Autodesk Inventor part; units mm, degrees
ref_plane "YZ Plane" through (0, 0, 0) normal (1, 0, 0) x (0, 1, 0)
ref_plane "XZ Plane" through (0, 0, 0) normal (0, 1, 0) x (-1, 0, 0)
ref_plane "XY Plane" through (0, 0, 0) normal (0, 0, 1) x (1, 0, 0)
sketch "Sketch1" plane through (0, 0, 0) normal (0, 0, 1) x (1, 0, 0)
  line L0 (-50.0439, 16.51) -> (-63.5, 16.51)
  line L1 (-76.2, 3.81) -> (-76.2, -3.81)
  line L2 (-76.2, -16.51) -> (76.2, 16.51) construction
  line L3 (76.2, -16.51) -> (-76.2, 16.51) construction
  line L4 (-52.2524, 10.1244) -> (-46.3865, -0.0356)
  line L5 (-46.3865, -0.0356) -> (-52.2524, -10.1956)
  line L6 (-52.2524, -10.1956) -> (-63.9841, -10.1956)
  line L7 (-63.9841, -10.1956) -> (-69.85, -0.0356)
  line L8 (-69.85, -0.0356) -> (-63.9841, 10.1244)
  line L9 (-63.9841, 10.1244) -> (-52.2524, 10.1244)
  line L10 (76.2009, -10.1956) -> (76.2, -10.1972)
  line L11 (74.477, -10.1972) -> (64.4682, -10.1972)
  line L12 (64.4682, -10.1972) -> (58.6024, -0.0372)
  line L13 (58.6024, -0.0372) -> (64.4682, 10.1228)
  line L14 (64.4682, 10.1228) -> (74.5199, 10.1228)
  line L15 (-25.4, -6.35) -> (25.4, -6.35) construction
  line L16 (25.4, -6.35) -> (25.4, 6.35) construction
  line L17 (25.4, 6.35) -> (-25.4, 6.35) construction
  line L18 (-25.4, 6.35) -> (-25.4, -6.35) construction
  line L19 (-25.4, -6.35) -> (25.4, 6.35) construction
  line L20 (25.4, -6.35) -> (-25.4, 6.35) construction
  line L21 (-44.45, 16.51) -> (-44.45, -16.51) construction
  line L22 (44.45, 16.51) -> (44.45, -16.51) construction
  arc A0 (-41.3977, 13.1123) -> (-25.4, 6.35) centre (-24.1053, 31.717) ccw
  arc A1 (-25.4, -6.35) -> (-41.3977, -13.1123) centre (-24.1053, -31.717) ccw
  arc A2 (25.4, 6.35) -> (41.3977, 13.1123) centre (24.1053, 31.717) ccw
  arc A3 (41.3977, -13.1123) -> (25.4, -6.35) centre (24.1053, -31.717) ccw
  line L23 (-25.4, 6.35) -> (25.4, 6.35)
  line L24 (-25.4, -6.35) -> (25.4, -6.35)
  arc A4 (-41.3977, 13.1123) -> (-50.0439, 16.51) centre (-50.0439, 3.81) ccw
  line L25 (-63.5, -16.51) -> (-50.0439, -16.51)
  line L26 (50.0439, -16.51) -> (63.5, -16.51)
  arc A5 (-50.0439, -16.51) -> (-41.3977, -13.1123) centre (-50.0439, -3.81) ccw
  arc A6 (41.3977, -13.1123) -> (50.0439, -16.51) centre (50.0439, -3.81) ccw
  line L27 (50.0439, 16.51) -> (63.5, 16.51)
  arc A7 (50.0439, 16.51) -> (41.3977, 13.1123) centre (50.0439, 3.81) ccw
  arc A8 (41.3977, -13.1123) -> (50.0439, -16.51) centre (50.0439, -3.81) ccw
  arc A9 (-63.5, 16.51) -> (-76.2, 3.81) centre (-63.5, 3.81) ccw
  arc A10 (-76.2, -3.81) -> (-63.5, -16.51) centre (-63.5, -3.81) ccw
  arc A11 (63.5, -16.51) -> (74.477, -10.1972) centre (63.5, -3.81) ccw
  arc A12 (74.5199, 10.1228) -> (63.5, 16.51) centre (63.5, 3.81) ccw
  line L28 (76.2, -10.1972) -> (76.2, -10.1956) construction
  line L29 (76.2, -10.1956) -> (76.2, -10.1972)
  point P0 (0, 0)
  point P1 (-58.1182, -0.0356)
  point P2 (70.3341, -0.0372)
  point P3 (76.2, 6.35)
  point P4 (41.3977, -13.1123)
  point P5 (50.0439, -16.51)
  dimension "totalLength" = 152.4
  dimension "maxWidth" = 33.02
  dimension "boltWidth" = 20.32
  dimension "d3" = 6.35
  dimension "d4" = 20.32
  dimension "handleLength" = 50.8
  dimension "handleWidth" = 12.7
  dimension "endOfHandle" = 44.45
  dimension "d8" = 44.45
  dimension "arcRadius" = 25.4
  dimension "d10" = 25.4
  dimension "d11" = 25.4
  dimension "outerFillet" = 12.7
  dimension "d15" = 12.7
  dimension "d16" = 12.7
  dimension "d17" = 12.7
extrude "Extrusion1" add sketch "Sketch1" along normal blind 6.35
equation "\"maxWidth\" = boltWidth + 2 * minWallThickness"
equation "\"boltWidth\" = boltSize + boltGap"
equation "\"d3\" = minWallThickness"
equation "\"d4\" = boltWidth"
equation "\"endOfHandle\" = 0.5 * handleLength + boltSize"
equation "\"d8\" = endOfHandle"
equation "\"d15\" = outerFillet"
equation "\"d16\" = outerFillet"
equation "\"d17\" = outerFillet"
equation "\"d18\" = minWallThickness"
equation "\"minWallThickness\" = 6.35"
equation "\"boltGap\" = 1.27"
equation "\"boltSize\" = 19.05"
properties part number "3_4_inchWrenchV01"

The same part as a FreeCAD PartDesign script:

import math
import FreeCAD as App
import Part
import Sketcher
from FreeCAD import Vector
Q = App.Units.Quantity

doc = App.newDocument("Part")
params = doc.addObject("Spreadsheet::Sheet", "Params")
for row, (alias, value) in enumerate([
    ("sketch1_radius", "1 in"),
    ("sketch1_radius2", "0.5 in"),
    ("sketch1_width", "2 in"),
    ("pad1_length", "0.25 in"),
], start=1):
    params.set(f"A{row}", alias)
    params.set(f"B{row}", "=" + value)
    params.setAlias(f"B{row}", alias)

body = doc.addObject("PartDesign::Body", "Body")

sketch1 = doc.addObject("Sketcher::SketchObject", "Sketch")
body.addObject(sketch1)
sketch1.AttachmentSupport = (doc.XY_Plane, [""])
sketch1.MapMode = "FlatFace"
sketch1.addGeometry(Part.ArcOfCircle(Part.Circle(Vector(-50, 4, 0), Vector(0, 0, 1), 13), math.radians(47), math.radians(90)), False)
sketch1.addGeometry(Part.LineSegment(Vector(-50, 17, 0), Vector(-64, 17, 0)), False)
sketch1.addGeometry(Part.ArcOfCircle(Part.Circle(Vector(-64, 4, 0), Vector(0, 0, 1), 13), math.radians(90), math.radians(180)), False)
sketch1.addGeometry(Part.LineSegment(Vector(-76, 4, 0), Vector(-76, -4, 0)), False)
sketch1.addGeometry(Part.ArcOfCircle(Part.Circle(Vector(-64, -4, 0), Vector(0, 0, 1), 13), math.radians(180), math.radians(270)), False)
sketch1.addGeometry(Part.LineSegment(Vector(-64, -17, 0), Vector(-50, -17, 0)), False)
sketch1.addGeometry(Part.ArcOfCircle(Part.Circle(Vector(-50, -4, 0), Vector(0, 0, 1), 13), math.radians(-90), math.radians(-47)), False)
sketch1.addGeometry(Part.ArcOfCircle(Part.Circle(Vector(-24, -32, 0), Vector(0, 0, 1), 25), math.radians(93), math.radians(133)), False)
sketch1.addGeometry(Part.LineSegment(Vector(-25, -6, 0), Vector(25, -6, 0)), False)
sketch1.addGeometry(Part.ArcOfCircle(Part.Circle(Vector(24, -32, 0), Vector(0, 0, 1), 25), math.radians(47), math.radians(87)), False)
sketch1.addGeometry(Part.ArcOfCircle(Part.Circle(Vector(50, -4, 0), Vector(0, 0, 1), 13), math.radians(-133), math.radians(-90)), False)
sketch1.addGeometry(Part.LineSegment(Vector(50, -17, 0), Vector(64, -17, 0)), False)
sketch1.addGeometry(Part.ArcOfCircle(Part.Circle(Vector(64, -4, 0), Vector(0, 0, 1), 13), math.radians(-90), math.radians(-30)), False)
sketch1.addGeometry(Part.LineSegment(Vector(74, -10, 0), Vector(64, -10, 0)), False)
sketch1.addGeometry(Part.LineSegment(Vector(64, -10, 0), Vector(59, 0, 0)), False)
sketch1.addGeometry(Part.LineSegment(Vector(59, 0, 0), Vector(64, 10, 0)), False)
sketch1.addGeometry(Part.LineSegment(Vector(64, 10, 0), Vector(75, 10, 0)), False)
sketch1.addGeometry(Part.ArcOfCircle(Part.Circle(Vector(64, 4, 0), Vector(0, 0, 1), 13), math.radians(30), math.radians(90)), False)
sketch1.addGeometry(Part.LineSegment(Vector(64, 17, 0), Vector(50, 17, 0)), False)
sketch1.addGeometry(Part.ArcOfCircle(Part.Circle(Vector(50, 4, 0), Vector(0, 0, 1), 13), math.radians(90), math.radians(133)), False)
sketch1.addGeometry(Part.ArcOfCircle(Part.Circle(Vector(24, 32, 0), Vector(0, 0, 1), 25), math.radians(-87), math.radians(-47)), False)
sketch1.addGeometry(Part.LineSegment(Vector(25, 6, 0), Vector(-25, 6, 0)), False)
sketch1.addGeometry(Part.ArcOfCircle(Part.Circle(Vector(-24, 32, 0), Vector(0, 0, 1), 25), math.radians(-133), math.radians(-93)), False)
sketch1.addGeometry(Part.LineSegment(Vector(-64, 10, 0), Vector(-52, 10, 0)), False)
sketch1.addGeometry(Part.LineSegment(Vector(-52, 10, 0), Vector(-46, 0, 0)), False)
sketch1.addGeometry(Part.LineSegment(Vector(-46, 0, 0), Vector(-52, -10, 0)), False)
sketch1.addGeometry(Part.LineSegment(Vector(-52, -10, 0), Vector(-64, -10, 0)), False)
sketch1.addGeometry(Part.LineSegment(Vector(-64, -10, 0), Vector(-70, 0, 0)), False)
sketch1.addGeometry(Part.LineSegment(Vector(-70, 0, 0), Vector(-64, 10, 0)), False)
sketch1.addConstraint(Sketcher.Constraint("Tangent", 0, 2, 1, 1))
sketch1.addConstraint(Sketcher.Constraint("Tangent", 1, 2, 2, 1))
sketch1.addConstraint(Sketcher.Constraint("Tangent", 2, 2, 3, 1))
sketch1.addConstraint(Sketcher.Constraint("Tangent", 3, 2, 4, 1))
sketch1.addConstraint(Sketcher.Constraint("Tangent", 4, 2, 5, 1))
sketch1.addConstraint(Sketcher.Constraint("Tangent", 5, 2, 6, 1))
sketch1.addConstraint(Sketcher.Constraint("Tangent", 6, 2, 7, 2))
sketch1.addConstraint(Sketcher.Constraint("Coincident", 7, 1, 8, 1))
sketch1.addConstraint(Sketcher.Constraint("Coincident", 8, 2, 9, 2))
sketch1.addConstraint(Sketcher.Constraint("Tangent", 9, 1, 10, 1))
sketch1.addConstraint(Sketcher.Constraint("Tangent", 10, 2, 11, 1))
sketch1.addConstraint(Sketcher.Constraint("Tangent", 11, 2, 12, 1))
sketch1.addConstraint(Sketcher.Constraint("Coincident", 12, 2, 13, 1))
sketch1.addConstraint(Sketcher.Constraint("Coincident", 13, 2, 14, 1))
sketch1.addConstraint(Sketcher.Constraint("Coincident", 14, 2, 15, 1))
sketch1.addConstraint(Sketcher.Constraint("Coincident", 15, 2, 16, 1))
sketch1.addConstraint(Sketcher.Constraint("Coincident", 16, 2, 17, 1))
sketch1.addConstraint(Sketcher.Constraint("Tangent", 17, 2, 18, 1))
sketch1.addConstraint(Sketcher.Constraint("Tangent", 18, 2, 19, 1))
sketch1.addConstraint(Sketcher.Constraint("Tangent", 19, 2, 20, 2))
sketch1.addConstraint(Sketcher.Constraint("Coincident", 20, 1, 21, 1))
sketch1.addConstraint(Sketcher.Constraint("Coincident", 21, 2, 22, 2))
sketch1.addConstraint(Sketcher.Constraint("Tangent", 22, 1, 0, 1))
sketch1.addConstraint(Sketcher.Constraint("Coincident", 23, 2, 24, 1))
sketch1.addConstraint(Sketcher.Constraint("Coincident", 24, 2, 25, 1))
sketch1.addConstraint(Sketcher.Constraint("Coincident", 25, 2, 26, 1))
sketch1.addConstraint(Sketcher.Constraint("Coincident", 26, 2, 27, 1))
sketch1.addConstraint(Sketcher.Constraint("Coincident", 27, 2, 28, 1))
sketch1.addConstraint(Sketcher.Constraint("Coincident", 28, 2, 23, 1))
sketch1.addConstraint(Sketcher.Constraint("Horizontal", 1))
sketch1.addConstraint(Sketcher.Constraint("Vertical", 3))
sketch1.addConstraint(Sketcher.Constraint("Horizontal", 5))
sketch1.addConstraint(Sketcher.Constraint("Horizontal", 8))
sketch1.addConstraint(Sketcher.Constraint("Horizontal", 11))
sketch1.addConstraint(Sketcher.Constraint("Horizontal", 13))
sketch1.addConstraint(Sketcher.Constraint("Horizontal", 16))
sketch1.addConstraint(Sketcher.Constraint("Horizontal", 18))
sketch1.addConstraint(Sketcher.Constraint("Horizontal", 21))
sketch1.addConstraint(Sketcher.Constraint("Horizontal", 23))
sketch1.addConstraint(Sketcher.Constraint("Horizontal", 26))
sketch1.addConstraint(Sketcher.Constraint("Equal", 0, 2))
sketch1.addConstraint(Sketcher.Constraint("Equal", 2, 4))
sketch1.addConstraint(Sketcher.Constraint("Equal", 4, 6))
sketch1.addConstraint(Sketcher.Constraint("Equal", 7, 9))
sketch1.addConstraint(Sketcher.Constraint("Equal", 6, 10))
sketch1.addConstraint(Sketcher.Constraint("Equal", 10, 12))
sketch1.addConstraint(Sketcher.Constraint("Equal", 12, 17))
sketch1.addConstraint(Sketcher.Constraint("Equal", 17, 19))
sketch1.addConstraint(Sketcher.Constraint("Equal", 9, 20))
sketch1.addConstraint(Sketcher.Constraint("Equal", 20, 22))
sketch1.addConstraint(Sketcher.Constraint("Symmetric", 0, 3, 10, 3, -1, 1))
sketch1.addConstraint(Sketcher.Constraint("Symmetric", 4, 3, 17, 3, -1, 1))
sketch1.addConstraint(Sketcher.Constraint("Symmetric", 7, 3, 20, 3, -1, 1))
sketch1.addConstraint(Sketcher.Constraint("Symmetric", 8, 2, 21, 2, -1, 1))
sketch1.addConstraint(Sketcher.Constraint("Symmetric", 7, 3, 9, 3, -2))
sketch1.addConstraint(Sketcher.Constraint("Symmetric", 4, 3, 12, 3, -2))
sketch1.addConstraint(Sketcher.Constraint("Parallel", 14, 24))
sketch1.addConstraint(Sketcher.Constraint("Parallel", 15, 25))
sketch1.addConstraint(Sketcher.Constraint("Parallel", 24, 27))
sketch1.addConstraint(Sketcher.Constraint("Parallel", 25, 28))
sketch1.addConstraint(Sketcher.Constraint("Horizontal", 24, 2, 27, 2))
sketch1.addConstraint(Sketcher.Constraint("Vertical", 13, 2, 15, 2))
sketch1.addConstraint(Sketcher.Constraint("Vertical", 23, 2, 25, 2))
sketch1.addConstraint(Sketcher.Constraint("Vertical", 26, 2, 28, 2))
sketch1.addConstraint(Sketcher.Constraint("Equal", 15, 24))
sketch1.addConstraint(Sketcher.Constraint("Radius", 7, Q("1 in")))
sketch1.addConstraint(Sketcher.Constraint("Radius", 0, Q("0.5 in")))
sketch1.addConstraint(Sketcher.Constraint("DistanceX", 8, 1, 8, 2, Q("2 in")))
sketch1.addConstraint(Sketcher.Constraint("DistanceY", 6, 3, 0, 2, Q("0.8 in")))
sketch1.addConstraint(Sketcher.Constraint("DistanceY", 12, 2, 16, 2, Q("0.8 in")))
sketch1.addConstraint(Sketcher.Constraint("DistanceY", 8, 2, 20, 1, Q("0.5 in")))
sketch1.addConstraint(Sketcher.Constraint("DistanceX", 27, 2, 4, 3, Q("0.25 in")))
sketch1.addConstraint(Sketcher.Constraint("DistanceX", 2, 2, -1, 1, Q("3 in")))
sketch1.addConstraint(Sketcher.Constraint("Angle", 14, Q("119.9997 deg")))
sketch1.addConstraint(Sketcher.Constraint("DistanceX", 6, 3, 24, 2, Q("0.144 in")))
sketch1.addConstraint(Sketcher.Constraint("DistanceX", 1, 2, 1, 1, 13.456))
sketch1.addConstraint(Sketcher.Constraint("DistanceX", 13, 2, 13, 1, 10.0088))
sketch1.addConstraint(Sketcher.Constraint("DistanceX", 16, 1, 16, 2, 10.0517))
sketch1.addConstraint(Sketcher.Constraint("DistanceY", -1, 1, 23, 2, Q("0.3986 in")))
sketch1.setExpression("Constraints[65]", "Params.sketch1_radius")
sketch1.setExpression("Constraints[66]", "Params.sketch1_radius2")
sketch1.setExpression("Constraints[67]", "Params.sketch1_width")
pad1 = doc.addObject("PartDesign::Pad", "Pad")
body.addObject(pad1)
pad1.Profile = sketch1
pad1.setExpression("Length", "Params.pad1_length")

doc.recompute()
